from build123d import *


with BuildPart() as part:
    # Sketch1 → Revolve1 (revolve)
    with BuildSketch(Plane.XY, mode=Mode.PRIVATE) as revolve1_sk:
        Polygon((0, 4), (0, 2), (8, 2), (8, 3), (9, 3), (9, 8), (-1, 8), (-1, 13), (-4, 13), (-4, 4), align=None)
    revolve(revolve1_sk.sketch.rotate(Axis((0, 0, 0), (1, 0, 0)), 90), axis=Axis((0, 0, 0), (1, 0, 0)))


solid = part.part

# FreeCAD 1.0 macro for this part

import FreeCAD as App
import Part
import Sketcher
Q = App.Units.Quantity

doc = App.newDocument("Part")
body = doc.addObject("PartDesign::Body", "Body")

# Sketch on XY plane
sketch1 = doc.addObject("Sketcher::SketchObject", "Sketch")
body.addObject(sketch1)
sketch1.AttachmentSupport = (doc.XY_Plane, [""])
sketch1.MapMode = "FlatFace"
sketch1.addGeometry([
    Part.LineSegment(App.Vector(0, 4, 0), App.Vector(0, 2, 0)),  # 0
    Part.LineSegment(App.Vector(0, 2, 0), App.Vector(8, 2, 0)),  # 1
    Part.LineSegment(App.Vector(8, 2, 0), App.Vector(8, 3, 0)),  # 2
    Part.LineSegment(App.Vector(8, 3, 0), App.Vector(9, 3, 0)),  # 3
    Part.LineSegment(App.Vector(9, 3, 0), App.Vector(9, 8, 0)),  # 4
    Part.LineSegment(App.Vector(9, 8, 0), App.Vector(-1, 8, 0)),  # 5
    Part.LineSegment(App.Vector(-1, 8, 0), App.Vector(-1, 13, 0)),  # 6
    Part.LineSegment(App.Vector(-1, 13, 0), App.Vector(-4, 13, 0)),  # 7
    Part.LineSegment(App.Vector(-4, 13, 0), App.Vector(-4, 4, 0)),  # 8
    Part.LineSegment(App.Vector(-4, 4, 0), App.Vector(0, 4, 0)),  # 9
], False)
sketch1.addConstraint([
    Sketcher.Constraint("Coincident", 0, 2, 1, 1),
    Sketcher.Constraint("Coincident", 1, 2, 2, 1),
    Sketcher.Constraint("Coincident", 2, 2, 3, 1),
    Sketcher.Constraint("Coincident", 3, 2, 4, 1),
    Sketcher.Constraint("Coincident", 4, 2, 5, 1),
    Sketcher.Constraint("Coincident", 5, 2, 6, 1),
    Sketcher.Constraint("Coincident", 6, 2, 7, 1),
    Sketcher.Constraint("Coincident", 7, 2, 8, 1),
    Sketcher.Constraint("Coincident", 8, 2, 9, 1),
    Sketcher.Constraint("Coincident", 9, 2, 0, 1),
    Sketcher.Constraint("Vertical", 0),
    Sketcher.Constraint("Horizontal", 1),
    Sketcher.Constraint("Vertical", 2),
    Sketcher.Constraint("Horizontal", 3),
    Sketcher.Constraint("Vertical", 4),
    Sketcher.Constraint("Horizontal", 5),
    Sketcher.Constraint("Vertical", 6),
    Sketcher.Constraint("Horizontal", 7),
    Sketcher.Constraint("Vertical", 8),
    Sketcher.Constraint("Horizontal", 9),
    Sketcher.Constraint("PointOnObject", 0, 2, -2),
    Sketcher.Constraint("Equal", 3, 2),
    Sketcher.Constraint("Equal", 4, 6),
    Sketcher.Constraint("DistanceX", 1, 1, 1, 2, Q("8 mm")),
    Sketcher.Constraint("DistanceX", 3, 1, 3, 2, Q("1 mm")),
    Sketcher.Constraint("DistanceX", 5, 2, 5, 1, Q("10 mm")),
    Sketcher.Constraint("DistanceX", 7, 2, 7, 1, Q("3 mm")),
    Sketcher.Constraint("DistanceY", 0, 2, 0, 1, Q("2 mm")),
    Sketcher.Constraint("DistanceY", 4, 1, 4, 2, Q("5 mm")),
    Sketcher.Constraint("DistanceY", -1, 1, 0, 2, Q("2 mm")),
])
revolution = doc.addObject("PartDesign::Revolution", "Revolution")
body.addObject(revolution)
revolution.Profile = sketch1
revolution.ReferenceAxis = (sketch1, ["H_Axis"])
revolution.Angle = 360

doc.recompute()
